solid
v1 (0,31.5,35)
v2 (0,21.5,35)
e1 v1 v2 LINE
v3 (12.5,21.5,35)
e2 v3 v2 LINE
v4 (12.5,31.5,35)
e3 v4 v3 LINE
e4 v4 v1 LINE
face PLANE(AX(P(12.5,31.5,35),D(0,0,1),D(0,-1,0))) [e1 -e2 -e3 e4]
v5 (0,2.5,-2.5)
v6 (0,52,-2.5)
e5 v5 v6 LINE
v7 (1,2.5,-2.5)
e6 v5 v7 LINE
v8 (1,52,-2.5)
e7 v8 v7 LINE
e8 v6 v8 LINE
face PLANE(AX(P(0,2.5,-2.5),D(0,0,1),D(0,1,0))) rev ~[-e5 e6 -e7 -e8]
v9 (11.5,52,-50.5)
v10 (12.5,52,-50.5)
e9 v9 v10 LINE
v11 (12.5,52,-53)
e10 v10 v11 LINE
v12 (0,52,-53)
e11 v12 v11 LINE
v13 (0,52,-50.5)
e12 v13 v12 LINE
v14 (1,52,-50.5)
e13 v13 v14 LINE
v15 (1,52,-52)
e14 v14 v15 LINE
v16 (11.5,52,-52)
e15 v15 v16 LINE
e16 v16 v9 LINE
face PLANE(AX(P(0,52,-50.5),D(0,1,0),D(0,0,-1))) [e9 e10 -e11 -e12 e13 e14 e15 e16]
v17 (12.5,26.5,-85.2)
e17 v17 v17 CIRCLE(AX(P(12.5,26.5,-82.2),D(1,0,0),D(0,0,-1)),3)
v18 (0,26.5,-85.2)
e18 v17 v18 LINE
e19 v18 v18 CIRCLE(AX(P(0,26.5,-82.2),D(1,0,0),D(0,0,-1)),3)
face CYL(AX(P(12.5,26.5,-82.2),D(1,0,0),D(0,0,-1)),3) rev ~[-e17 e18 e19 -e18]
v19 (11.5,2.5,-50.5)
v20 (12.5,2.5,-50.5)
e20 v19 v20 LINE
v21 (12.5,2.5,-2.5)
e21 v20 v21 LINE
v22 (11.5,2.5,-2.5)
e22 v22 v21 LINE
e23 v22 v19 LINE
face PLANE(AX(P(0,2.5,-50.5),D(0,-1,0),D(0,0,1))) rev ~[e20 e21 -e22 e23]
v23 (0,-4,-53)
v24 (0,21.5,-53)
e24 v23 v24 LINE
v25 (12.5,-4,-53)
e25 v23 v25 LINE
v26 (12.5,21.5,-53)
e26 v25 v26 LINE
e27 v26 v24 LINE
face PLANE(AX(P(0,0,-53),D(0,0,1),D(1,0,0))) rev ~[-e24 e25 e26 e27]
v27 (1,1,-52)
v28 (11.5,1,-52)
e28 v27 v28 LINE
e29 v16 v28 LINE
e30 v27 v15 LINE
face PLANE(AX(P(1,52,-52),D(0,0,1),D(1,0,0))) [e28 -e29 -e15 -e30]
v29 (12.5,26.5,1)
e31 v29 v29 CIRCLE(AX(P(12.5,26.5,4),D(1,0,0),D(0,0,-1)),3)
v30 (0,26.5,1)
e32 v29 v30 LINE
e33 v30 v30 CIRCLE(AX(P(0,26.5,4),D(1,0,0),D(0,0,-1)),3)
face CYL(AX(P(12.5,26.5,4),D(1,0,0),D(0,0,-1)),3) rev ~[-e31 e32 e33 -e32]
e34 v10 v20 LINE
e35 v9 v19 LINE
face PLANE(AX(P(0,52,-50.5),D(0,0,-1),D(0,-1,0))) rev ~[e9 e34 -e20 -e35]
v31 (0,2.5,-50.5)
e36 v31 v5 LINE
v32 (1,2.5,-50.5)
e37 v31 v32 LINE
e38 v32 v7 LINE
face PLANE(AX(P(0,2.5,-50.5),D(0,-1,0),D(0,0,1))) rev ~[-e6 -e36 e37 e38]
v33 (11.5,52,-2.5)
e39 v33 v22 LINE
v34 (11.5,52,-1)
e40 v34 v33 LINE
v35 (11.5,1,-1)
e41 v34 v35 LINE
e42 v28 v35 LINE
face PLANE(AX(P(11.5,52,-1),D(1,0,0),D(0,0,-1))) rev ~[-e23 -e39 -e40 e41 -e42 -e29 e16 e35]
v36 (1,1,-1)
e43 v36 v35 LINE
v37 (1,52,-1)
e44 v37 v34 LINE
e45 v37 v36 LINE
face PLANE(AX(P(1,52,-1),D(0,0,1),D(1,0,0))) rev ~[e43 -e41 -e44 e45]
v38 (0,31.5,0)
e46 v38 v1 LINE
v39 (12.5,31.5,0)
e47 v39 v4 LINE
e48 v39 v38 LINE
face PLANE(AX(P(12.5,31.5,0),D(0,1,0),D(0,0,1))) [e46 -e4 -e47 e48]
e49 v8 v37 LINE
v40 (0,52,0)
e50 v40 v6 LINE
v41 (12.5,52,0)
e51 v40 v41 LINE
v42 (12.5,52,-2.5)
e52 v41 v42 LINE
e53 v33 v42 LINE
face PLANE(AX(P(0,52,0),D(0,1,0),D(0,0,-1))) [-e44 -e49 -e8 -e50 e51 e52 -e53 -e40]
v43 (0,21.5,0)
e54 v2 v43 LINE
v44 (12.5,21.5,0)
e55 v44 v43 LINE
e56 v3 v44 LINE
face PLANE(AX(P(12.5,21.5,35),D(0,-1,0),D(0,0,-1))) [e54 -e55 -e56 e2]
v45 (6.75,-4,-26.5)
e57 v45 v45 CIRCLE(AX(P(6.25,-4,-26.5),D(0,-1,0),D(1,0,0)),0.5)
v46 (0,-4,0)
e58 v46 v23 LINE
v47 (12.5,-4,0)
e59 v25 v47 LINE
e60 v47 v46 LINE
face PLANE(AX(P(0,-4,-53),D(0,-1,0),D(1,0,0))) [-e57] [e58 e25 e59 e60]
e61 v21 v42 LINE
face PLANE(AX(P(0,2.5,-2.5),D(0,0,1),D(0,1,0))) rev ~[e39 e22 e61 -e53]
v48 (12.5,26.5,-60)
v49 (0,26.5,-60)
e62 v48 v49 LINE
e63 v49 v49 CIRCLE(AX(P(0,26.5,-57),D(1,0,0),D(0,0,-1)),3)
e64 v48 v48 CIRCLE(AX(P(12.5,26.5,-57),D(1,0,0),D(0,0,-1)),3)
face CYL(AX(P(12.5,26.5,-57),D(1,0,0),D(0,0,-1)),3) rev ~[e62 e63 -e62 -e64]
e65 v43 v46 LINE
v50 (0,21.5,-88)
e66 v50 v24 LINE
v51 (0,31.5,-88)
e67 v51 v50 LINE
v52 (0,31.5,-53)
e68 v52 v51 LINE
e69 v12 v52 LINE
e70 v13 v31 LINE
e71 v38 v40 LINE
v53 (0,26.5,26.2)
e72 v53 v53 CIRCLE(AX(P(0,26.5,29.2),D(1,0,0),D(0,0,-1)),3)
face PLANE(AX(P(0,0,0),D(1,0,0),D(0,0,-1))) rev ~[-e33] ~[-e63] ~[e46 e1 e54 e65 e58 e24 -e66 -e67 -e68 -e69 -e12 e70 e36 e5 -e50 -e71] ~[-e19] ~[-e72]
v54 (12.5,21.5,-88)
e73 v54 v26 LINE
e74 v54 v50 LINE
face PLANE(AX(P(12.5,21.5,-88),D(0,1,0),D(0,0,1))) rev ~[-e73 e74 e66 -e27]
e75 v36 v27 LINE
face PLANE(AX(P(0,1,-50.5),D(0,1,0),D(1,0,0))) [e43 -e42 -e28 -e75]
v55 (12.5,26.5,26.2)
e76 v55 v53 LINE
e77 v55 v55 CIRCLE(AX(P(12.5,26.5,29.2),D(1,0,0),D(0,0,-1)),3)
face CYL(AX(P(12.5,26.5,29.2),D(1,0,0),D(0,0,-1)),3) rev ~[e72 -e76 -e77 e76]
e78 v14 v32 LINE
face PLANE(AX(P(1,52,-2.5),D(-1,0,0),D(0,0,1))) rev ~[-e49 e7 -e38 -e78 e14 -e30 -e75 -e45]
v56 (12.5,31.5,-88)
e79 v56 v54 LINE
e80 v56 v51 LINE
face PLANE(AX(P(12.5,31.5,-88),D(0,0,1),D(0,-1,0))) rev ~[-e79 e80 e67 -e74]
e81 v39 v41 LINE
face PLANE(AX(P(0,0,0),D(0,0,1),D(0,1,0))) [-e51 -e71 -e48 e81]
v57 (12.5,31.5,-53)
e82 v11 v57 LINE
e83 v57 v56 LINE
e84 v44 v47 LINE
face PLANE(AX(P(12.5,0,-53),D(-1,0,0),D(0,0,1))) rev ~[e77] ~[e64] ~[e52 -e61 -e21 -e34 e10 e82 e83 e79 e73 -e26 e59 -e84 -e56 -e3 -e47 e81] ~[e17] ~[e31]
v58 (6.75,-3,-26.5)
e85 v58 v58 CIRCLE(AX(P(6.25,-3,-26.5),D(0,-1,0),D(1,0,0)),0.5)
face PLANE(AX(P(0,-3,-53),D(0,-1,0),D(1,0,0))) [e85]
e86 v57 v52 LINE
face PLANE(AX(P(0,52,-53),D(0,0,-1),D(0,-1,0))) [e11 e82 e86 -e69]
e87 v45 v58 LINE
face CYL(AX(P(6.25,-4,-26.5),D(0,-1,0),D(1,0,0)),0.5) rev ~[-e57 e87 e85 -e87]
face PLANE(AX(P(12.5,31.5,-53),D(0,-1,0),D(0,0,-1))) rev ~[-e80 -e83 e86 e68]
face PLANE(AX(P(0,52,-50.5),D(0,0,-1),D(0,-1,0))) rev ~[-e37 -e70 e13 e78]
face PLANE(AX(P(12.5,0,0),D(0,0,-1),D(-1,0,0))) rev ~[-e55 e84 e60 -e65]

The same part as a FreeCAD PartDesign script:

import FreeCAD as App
import Part
import Sketcher
from FreeCAD import Vector
Q = App.Units.Quantity


def add_polygon(sketch, points):
    """Adds a closed chain of lines whose ends are joined by coincident constraints."""
    first, n = sketch.GeometryCount, len(points)
    for a, b in zip(points, points[1:] + points[:1]):
        sketch.addGeometry(Part.LineSegment(App.Vector(*a, 0), App.Vector(*b, 0)), False)
    for i in range(n):
        sketch.addConstraint(Sketcher.Constraint("Coincident", first + i, 2, first + (i + 1) % n, 1))

doc = App.newDocument("Part")
body = doc.addObject("PartDesign::Body", "Body")

# Sketch on YZ plane
sketch1 = doc.addObject("Sketcher::SketchObject", "Sketch")
body.addObject(sketch1)
sketch1.AttachmentSupport = (doc.YZ_Plane, [""])
sketch1.MapMode = "FlatFace"
add_polygon(sketch1, [(52, 0), (0, 0), (0, -53), (52, -53), (52, -50.5), (2.5, -50.5), (2.5, -2.5), (52, -2.5)])  # lines 0-7
sketch1.addConstraint([
    Sketcher.Constraint("Horizontal", 0),
    Sketcher.Constraint("Vertical", 1),
    Sketcher.Constraint("Horizontal", 2),
    Sketcher.Constraint("Vertical", 3),
    Sketcher.Constraint("Horizontal", 4),
    Sketcher.Constraint("Vertical", 5),
    Sketcher.Constraint("Horizontal", 6),
    Sketcher.Constraint("Vertical", 7),
    Sketcher.Constraint("Coincident", 0, 2, -1, 1),
    Sketcher.Constraint("Vertical", 3, 2, 6, 2),
    Sketcher.Constraint("Equal", 3, 7),
    Sketcher.Constraint("DistanceX", 0, 2, 0, 1, Q("52 mm")),
    Sketcher.Constraint("DistanceY", 1, 2, 1, 1, Q("53 mm")),
    Sketcher.Constraint("DistanceY", 3, 1, 3, 2, Q("2.5 mm")),
    Sketcher.Constraint("DistanceX", -1, 1, 4, 2, Q("2.5 mm")),
])
pad1 = doc.addObject("PartDesign::Pad", "Pad")
body.addObject(pad1)
pad1.Profile = sketch1
pad1.Length = 12.5

# Sketch on XZ plane
sketch2 = doc.addObject("Sketcher::SketchObject", "Sketch001")
body.addObject(sketch2)
sketch2.AttachmentSupport = (doc.XZ_Plane, [""])
sketch2.MapMode = "FlatFace"
sketch2.AttachmentOffset = App.Placement(Vector(0, 0, -52), App.Rotation())
add_polygon(sketch2, [(1, -2.5), (1, -1), (11.5, -1), (11.5, -2.5)])  # lines 0-3
add_polygon(sketch2, [(11.5, -52), (1, -52), (1, -50.5), (11.5, -50.5)])  # lines 4-7
sketch2.addConstraint([
    Sketcher.Constraint("Vertical", 0),
    Sketcher.Constraint("Horizontal", 1),
    Sketcher.Constraint("Vertical", 2),
    Sketcher.Constraint("Horizontal", 3),
    Sketcher.Constraint("Horizontal", 4),
    Sketcher.Constraint("Vertical", 5),
    Sketcher.Constraint("Horizontal", 6),
    Sketcher.Constraint("Vertical", 7),
    Sketcher.Constraint("Vertical", 3, 2, 4, 2),
    Sketcher.Constraint("Vertical", 2, 2, 6, 2),
    Sketcher.Constraint("Equal", 2, 5),
    Sketcher.Constraint("DistanceX", 1, 1, 1, 2, Q("10.5 mm")),
    Sketcher.Constraint("DistanceY", 0, 1, 0, 2, Q("1.5 mm")),
    Sketcher.Constraint("DistanceX", -1, 1, 0, 2, Q("1 mm")),
    Sketcher.Constraint("DistanceY", 0, 2, -1, 1, Q("1 mm")),
    Sketcher.Constraint("DistanceY", 4, 2, -1, 1, Q("52 mm")),
])
pocket1 = doc.addObject("PartDesign::Pocket", "Pocket")
body.addObject(pocket1)
pocket1.Profile = sketch2
pocket1.Length = 51
pocket1.Reversed = True

# Sketch on XZ plane
sketch3 = doc.addObject("Sketcher::SketchObject", "Sketch002")
body.addObject(sketch3)
sketch3.AttachmentSupport = (doc.XZ_Plane, [""])
sketch3.MapMode = "FlatFace"
sketch3.AttachmentOffset = App.Placement(Vector(0, 0, -2.5), App.Rotation())
add_polygon(sketch3, [(1, -52), (1, -1), (12, -1), (12, -52)])  # lines 0-3
sketch3.addConstraint([
    Sketcher.Constraint("Vertical", 0),
    Sketcher.Constraint("Horizontal", 1),
    Sketcher.Constraint("Vertical", 2),
    Sketcher.Constraint("Horizontal", 3),
    Sketcher.Constraint("DistanceY", 0, 1, 0, 2, Q("51 mm")),
    Sketcher.Constraint("DistanceX", 1, 1, 1, 2, Q("10.5 mm")),
    Sketcher.Constraint("DistanceX", -1, 1, 0, 2, Q("1 mm")),
    Sketcher.Constraint("DistanceY", 0, 2, -1, 1, Q("1 mm")),
])
pocket2 = doc.addObject("PartDesign::Pocket", "Pocket001")
body.addObject(pocket2)
pocket2.Profile = sketch3
pocket2.Length = 1.5
pocket2.Reversed = True

# Sketch on YZ plane
sketch4 = doc.addObject("Sketcher::SketchObject", "Sketch003")
body.addObject(sketch4)
sketch4.AttachmentSupport = (doc.YZ_Plane, [""])
sketch4.MapMode = "FlatFace"
sketch4.AttachmentOffset = App.Placement(Vector(0, 0, 12.5), App.Rotation())
add_polygon(sketch4, [(32, -88), (32, -53), (22, -53), (22, -88)])  # lines 0-3
add_polygon(sketch4, [(22, 0), (32, 0), (32, 35), (22, 35)])  # lines 4-7
sketch4.addConstraint([
    Sketcher.Constraint("Vertical", 0),
    Sketcher.Constraint("Horizontal", 1),
    Sketcher.Constraint("Vertical", 2),
    Sketcher.Constraint("Horizontal", 3),
    Sketcher.Constraint("Horizontal", 4),
    Sketcher.Constraint("Vertical", 5),
    Sketcher.Constraint("Horizontal", 6),
    Sketcher.Constraint("Vertical", 7),
    Sketcher.Constraint("PointOnObject", 4, 2, -1),
    Sketcher.Constraint("Vertical", 3, 2, 4, 2),
    Sketcher.Constraint("Vertical", 2, 2, 6, 2),
    Sketcher.Constraint("Equal", 2, 5),
    Sketcher.Constraint("DistanceX", 1, 2, 1, 1, Q("10 mm")),
    Sketcher.Constraint("DistanceY", 0, 1, 0, 2, Q("35 mm")),
    Sketcher.Constraint("DistanceY", 0, 2, -1, 1, Q("53 mm")),
    Sketcher.Constraint("DistanceX", -1, 1, 0, 2, Q("31.5 mm")),
])
pad2 = doc.addObject("PartDesign::Pad", "Pad001")
body.addObject(pad2)
pad2.Profile = sketch4
pad2.Length = 12.5
pad2.Reversed = True

# Sketch on YZ plane
sketch5 = doc.addObject("Sketcher::SketchObject", "Sketch004")
body.addObject(sketch5)
sketch5.AttachmentSupport = (doc.YZ_Plane, [""])
sketch5.MapMode = "FlatFace"
sketch5.AttachmentOffset = App.Placement(Vector(0, 0, 12.5), App.Rotation())
sketch5.addGeometry([
    Part.Circle(Vector(26.5, -57, 0), Vector(0, 0, 1), 3),
    Part.Circle(Vector(26.5, -82.2, 0), Vector(0, 0, 1), 3),
    Part.Circle(Vector(26.5, 4, 0), Vector(0, 0, 1), 3),
    Part.Circle(Vector(26.5, 29.2, 0), Vector(0, 0, 1), 3),
], False)
sketch5.addConstraint([
    Sketcher.Constraint("Equal", 0, 1),
    Sketcher.Constraint("Equal", 1, 2),
    Sketcher.Constraint("Equal", 2, 3),
    Sketcher.Constraint("Vertical", 0, 3, 1, 3),
    Sketcher.Constraint("Vertical", 1, 3, 2, 3),
    Sketcher.Constraint("Vertical", 2, 3, 3, 3),
    Sketcher.Constraint("Diameter", 0, Q("6 mm")),
    Sketcher.Constraint("DistanceY", -1, 1, 2, 3, Q("4 mm")),
    Sketcher.Constraint("DistanceY", 1, 3, 0, 3, Q("25.2 mm")),
    Sketcher.Constraint("DistanceY", 2, 3, 3, 3, Q("25.2 mm")),
    Sketcher.Constraint("DistanceY", 0, 3, -1, 1, Q("57 mm")),
    Sketcher.Constraint("DistanceX", -1, 1, 0, 3, Q("26.5 mm")),
])
pocket3 = doc.addObject("PartDesign::Pocket", "Pocket002")
body.addObject(pocket3)
pocket3.Profile = sketch5
pocket3.Length = 12.5

# Sketch on XZ plane
sketch6 = doc.addObject("Sketcher::SketchObject", "Sketch005")
body.addObject(sketch6)
sketch6.AttachmentSupport = (doc.XZ_Plane, [""])
sketch6.MapMode = "FlatFace"
add_polygon(sketch6, [(12, -53), (12, 0), (0, 0), (0, -53)])  # lines 0-3
sketch6.addConstraint([
    Sketcher.Constraint("Vertical", 0),
    Sketcher.Constraint("Horizontal", 1),
    Sketcher.Constraint("Vertical", 2),
    Sketcher.Constraint("Horizontal", 3),
    Sketcher.Constraint("Coincident", 1, 2, -1, 1),
    Sketcher.Constraint("DistanceY", 0, 1, 0, 2, Q("53 mm")),
    Sketcher.Constraint("DistanceX", 1, 2, 1, 1, Q("12.5 mm")),
])
pad3 = doc.addObject("PartDesign::Pad", "Pad002")
body.addObject(pad3)
pad3.Profile = sketch6
pad3.Length = 4

# Sketch on XZ plane
sketch7 = doc.addObject("Sketcher::SketchObject", "Sketch006")
body.addObject(sketch7)
sketch7.AttachmentSupport = (doc.XZ_Plane, [""])
sketch7.MapMode = "FlatFace"
sketch7.AttachmentOffset = App.Placement(Vector(0, 0, 4), App.Rotation())
sketch7.addGeometry(Part.Circle(Vector(6.2, -26.5, 0), Vector(0, 0, 1), 0.5), False)
sketch7.addConstraint([
    Sketcher.Constraint("Diameter", 0, Q("1 mm")),
    Sketcher.Constraint("DistanceY", 0, 3, -1, 1, Q("26.5 mm")),
    Sketcher.Constraint("DistanceX", -1, 1, 0, 3, Q("6.25 mm")),
])
pocket4 = doc.addObject("PartDesign::Pocket", "Pocket003")
body.addObject(pocket4)
pocket4.Profile = sketch7
pocket4.Length = 1

doc.recompute()
